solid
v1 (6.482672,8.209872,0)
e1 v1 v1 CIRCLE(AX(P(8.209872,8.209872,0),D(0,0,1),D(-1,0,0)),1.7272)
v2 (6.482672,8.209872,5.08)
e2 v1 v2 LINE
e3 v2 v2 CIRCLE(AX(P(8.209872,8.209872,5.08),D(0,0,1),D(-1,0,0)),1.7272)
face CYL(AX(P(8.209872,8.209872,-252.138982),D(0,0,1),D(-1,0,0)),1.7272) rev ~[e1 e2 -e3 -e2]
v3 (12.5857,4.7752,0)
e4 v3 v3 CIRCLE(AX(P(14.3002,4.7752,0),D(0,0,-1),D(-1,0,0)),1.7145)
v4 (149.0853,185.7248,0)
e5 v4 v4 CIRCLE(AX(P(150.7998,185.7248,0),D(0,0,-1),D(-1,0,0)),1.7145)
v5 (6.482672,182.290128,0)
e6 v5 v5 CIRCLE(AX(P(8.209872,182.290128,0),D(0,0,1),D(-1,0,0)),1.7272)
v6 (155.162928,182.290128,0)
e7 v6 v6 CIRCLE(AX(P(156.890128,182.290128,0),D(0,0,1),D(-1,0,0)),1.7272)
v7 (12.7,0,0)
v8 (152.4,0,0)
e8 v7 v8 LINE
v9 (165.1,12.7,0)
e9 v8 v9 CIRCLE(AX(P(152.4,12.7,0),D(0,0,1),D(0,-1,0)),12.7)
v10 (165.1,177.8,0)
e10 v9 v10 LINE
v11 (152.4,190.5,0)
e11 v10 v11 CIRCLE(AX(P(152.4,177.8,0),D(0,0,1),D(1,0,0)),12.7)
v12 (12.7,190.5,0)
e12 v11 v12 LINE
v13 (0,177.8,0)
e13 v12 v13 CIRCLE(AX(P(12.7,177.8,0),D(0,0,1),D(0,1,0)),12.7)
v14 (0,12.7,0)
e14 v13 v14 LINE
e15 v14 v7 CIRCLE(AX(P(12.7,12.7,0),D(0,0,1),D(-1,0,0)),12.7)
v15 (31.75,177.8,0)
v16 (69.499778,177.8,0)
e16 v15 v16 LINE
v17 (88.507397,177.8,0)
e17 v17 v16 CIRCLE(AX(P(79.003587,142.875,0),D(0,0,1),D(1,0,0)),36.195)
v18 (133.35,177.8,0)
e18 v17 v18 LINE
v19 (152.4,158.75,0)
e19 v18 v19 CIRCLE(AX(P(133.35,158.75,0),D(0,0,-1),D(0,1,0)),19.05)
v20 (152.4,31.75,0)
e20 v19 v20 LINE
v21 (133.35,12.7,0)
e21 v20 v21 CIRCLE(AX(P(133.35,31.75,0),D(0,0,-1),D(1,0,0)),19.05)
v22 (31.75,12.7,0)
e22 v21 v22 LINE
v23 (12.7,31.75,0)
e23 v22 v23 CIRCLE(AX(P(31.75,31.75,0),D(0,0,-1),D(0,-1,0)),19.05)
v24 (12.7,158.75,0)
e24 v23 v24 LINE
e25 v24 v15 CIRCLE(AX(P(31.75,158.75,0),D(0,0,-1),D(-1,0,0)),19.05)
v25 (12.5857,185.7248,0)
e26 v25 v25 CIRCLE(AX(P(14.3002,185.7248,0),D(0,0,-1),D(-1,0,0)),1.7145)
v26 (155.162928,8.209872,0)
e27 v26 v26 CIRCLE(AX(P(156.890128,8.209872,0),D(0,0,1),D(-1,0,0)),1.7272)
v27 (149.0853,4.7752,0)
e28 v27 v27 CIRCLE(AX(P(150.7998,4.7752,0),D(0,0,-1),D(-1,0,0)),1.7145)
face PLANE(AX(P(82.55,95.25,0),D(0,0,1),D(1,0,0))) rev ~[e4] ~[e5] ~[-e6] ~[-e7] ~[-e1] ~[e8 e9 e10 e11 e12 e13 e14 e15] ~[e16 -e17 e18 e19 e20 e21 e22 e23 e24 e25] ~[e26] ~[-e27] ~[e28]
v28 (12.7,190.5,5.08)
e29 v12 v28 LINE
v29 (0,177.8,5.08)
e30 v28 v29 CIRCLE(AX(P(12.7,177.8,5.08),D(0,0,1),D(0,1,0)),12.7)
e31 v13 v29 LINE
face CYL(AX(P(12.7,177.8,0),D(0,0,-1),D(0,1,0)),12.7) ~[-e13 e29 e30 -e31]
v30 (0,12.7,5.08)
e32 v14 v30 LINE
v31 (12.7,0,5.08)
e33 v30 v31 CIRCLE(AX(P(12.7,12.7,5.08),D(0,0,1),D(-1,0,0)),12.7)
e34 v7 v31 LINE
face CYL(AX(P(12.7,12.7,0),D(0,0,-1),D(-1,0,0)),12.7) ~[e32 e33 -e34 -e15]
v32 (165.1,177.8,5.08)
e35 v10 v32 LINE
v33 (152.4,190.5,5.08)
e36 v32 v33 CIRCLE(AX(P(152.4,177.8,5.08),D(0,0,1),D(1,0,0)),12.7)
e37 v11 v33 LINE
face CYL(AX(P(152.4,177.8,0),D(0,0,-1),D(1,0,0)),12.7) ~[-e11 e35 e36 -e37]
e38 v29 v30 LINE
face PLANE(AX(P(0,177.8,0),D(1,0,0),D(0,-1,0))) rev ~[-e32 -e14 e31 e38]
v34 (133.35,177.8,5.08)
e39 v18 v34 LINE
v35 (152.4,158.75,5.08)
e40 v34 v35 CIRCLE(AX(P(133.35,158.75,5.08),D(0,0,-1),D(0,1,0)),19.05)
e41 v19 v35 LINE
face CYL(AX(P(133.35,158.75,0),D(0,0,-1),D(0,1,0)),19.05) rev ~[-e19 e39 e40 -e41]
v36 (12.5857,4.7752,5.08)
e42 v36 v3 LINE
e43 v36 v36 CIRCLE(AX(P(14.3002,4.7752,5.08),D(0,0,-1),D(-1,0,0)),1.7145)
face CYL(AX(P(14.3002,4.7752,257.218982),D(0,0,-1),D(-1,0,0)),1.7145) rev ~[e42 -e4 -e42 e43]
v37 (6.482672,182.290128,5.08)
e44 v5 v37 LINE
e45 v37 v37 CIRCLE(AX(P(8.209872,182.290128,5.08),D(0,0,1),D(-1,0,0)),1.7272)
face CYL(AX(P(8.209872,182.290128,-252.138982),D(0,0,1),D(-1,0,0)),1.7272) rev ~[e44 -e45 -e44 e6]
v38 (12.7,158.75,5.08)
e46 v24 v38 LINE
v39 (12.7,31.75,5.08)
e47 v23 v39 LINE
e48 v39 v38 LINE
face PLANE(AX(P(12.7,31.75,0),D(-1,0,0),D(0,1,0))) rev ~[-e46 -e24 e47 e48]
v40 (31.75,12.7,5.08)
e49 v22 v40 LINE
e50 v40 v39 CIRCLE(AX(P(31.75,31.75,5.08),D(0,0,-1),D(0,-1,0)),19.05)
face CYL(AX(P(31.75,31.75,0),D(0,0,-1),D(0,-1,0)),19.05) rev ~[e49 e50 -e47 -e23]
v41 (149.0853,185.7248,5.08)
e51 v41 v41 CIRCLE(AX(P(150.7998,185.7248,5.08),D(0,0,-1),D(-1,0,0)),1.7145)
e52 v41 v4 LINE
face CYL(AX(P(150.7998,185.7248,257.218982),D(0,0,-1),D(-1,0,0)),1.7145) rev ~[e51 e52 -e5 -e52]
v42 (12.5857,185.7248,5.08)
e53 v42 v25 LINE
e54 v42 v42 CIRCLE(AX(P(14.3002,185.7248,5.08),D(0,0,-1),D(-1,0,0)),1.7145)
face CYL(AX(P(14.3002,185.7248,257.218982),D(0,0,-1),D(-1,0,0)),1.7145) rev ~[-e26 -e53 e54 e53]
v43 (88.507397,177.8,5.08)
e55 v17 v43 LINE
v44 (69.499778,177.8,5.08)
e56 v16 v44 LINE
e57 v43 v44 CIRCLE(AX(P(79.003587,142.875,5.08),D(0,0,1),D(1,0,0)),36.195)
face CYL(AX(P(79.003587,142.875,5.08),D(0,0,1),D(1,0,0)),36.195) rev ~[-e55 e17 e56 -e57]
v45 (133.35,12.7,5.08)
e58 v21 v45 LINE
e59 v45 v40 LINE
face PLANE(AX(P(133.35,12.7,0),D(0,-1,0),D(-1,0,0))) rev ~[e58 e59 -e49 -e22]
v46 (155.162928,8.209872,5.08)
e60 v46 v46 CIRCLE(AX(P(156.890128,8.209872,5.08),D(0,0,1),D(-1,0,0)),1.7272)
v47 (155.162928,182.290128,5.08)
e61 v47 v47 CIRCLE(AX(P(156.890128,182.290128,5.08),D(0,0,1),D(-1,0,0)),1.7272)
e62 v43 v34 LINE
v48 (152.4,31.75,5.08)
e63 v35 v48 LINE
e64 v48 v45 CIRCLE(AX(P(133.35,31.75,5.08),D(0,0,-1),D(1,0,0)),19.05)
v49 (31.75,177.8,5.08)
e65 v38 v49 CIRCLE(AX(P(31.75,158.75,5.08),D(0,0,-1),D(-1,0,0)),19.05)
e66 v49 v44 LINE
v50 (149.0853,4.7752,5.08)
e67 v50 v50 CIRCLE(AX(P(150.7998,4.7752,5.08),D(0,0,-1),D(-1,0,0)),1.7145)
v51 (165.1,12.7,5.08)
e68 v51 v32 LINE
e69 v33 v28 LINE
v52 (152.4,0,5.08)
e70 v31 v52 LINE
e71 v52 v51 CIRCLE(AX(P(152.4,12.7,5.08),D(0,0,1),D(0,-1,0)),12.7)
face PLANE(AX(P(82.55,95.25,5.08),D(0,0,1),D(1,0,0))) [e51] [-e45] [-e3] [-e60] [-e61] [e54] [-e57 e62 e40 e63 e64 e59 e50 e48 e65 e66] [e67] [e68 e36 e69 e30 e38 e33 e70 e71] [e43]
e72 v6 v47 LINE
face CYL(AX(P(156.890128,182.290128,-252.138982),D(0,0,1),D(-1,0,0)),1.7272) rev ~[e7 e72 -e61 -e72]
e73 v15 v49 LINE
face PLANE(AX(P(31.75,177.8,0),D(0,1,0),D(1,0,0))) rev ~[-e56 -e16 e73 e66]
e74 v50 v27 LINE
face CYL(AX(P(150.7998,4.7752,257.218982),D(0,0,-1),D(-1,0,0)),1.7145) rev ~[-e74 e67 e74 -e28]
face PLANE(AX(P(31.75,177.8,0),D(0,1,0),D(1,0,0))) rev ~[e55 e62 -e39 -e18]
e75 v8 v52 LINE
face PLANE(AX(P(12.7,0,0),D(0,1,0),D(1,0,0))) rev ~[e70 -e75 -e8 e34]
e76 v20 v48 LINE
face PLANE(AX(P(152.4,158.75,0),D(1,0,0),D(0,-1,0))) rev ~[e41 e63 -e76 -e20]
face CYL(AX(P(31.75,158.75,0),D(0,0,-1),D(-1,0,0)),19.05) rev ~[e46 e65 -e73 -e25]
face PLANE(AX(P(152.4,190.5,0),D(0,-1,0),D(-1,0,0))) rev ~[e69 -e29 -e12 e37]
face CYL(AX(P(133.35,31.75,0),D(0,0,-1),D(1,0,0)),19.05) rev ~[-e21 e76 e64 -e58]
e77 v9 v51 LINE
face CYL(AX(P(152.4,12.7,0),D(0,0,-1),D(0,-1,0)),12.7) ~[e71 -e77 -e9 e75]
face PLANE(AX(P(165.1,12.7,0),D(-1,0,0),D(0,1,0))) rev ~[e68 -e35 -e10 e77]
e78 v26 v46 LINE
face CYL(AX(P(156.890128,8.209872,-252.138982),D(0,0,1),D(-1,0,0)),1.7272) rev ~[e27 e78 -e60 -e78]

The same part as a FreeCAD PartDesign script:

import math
import FreeCAD as App
import Part
import Sketcher

V = App.Vector
Q = App.Units.Quantity

doc = App.newDocument("Part")
body = doc.addObject("PartDesign::Body", "Body")

# Sketch on XY plane
sketch1 = body.newObject("Sketcher::SketchObject", "Sketch")
sketch1.AttachmentSupport = (doc.getObject("XY_Plane"), [""])
sketch1.MapMode = "FlatFace"
sketch1.addGeometry(Part.ArcOfCircle(Part.Circle(V(13, 13, 0), V(0, 0, 1), 13), math.radians(180), math.radians(270)), False)
sketch1.addGeometry(Part.LineSegment(V(13, 0, 0), V(152, 0, 0)), False)
sketch1.addGeometry(Part.ArcOfCircle(Part.Circle(V(152, 13, 0), V(0, 0, 1), 13), math.radians(-90), math.radians(0)), False)
sketch1.addGeometry(Part.LineSegment(V(165, 13, 0), V(165, 178, 0)), False)
sketch1.addGeometry(Part.ArcOfCircle(Part.Circle(V(152, 178, 0), V(0, 0, 1), 13), math.radians(0), math.radians(90)), False)
sketch1.addGeometry(Part.LineSegment(V(152, 190, 0), V(13, 190, 0)), False)
sketch1.addGeometry(Part.ArcOfCircle(Part.Circle(V(13, 178, 0), V(0, 0, 1), 13), math.radians(90), math.radians(180)), False)
sketch1.addGeometry(Part.LineSegment(V(0, 178, 0), V(0, 13, 0)), False)
sketch1.addGeometry(Part.LineSegment(V(13, 32, 0), V(13, 159, 0)), False)
sketch1.addGeometry(Part.ArcOfCircle(Part.Circle(V(32, 159, 0), V(0, 0, 1), 19), math.radians(90), math.radians(180)), False)
sketch1.addGeometry(Part.LineSegment(V(32, 178, 0), V(133, 178, 0)), False)
sketch1.addGeometry(Part.ArcOfCircle(Part.Circle(V(133, 159, 0), V(0, 0, 1), 19), math.radians(0), math.radians(90)), False)
sketch1.addGeometry(Part.LineSegment(V(152, 159, 0), V(152, 32, 0)), False)
sketch1.addGeometry(Part.ArcOfCircle(Part.Circle(V(133, 32, 0), V(0, 0, 1), 19), math.radians(-90), math.radians(0)), False)
sketch1.addGeometry(Part.LineSegment(V(133, 13, 0), V(32, 13, 0)), False)
sketch1.addGeometry(Part.ArcOfCircle(Part.Circle(V(32, 32, 0), V(0, 0, 1), 19), math.radians(180), math.radians(270)), False)
sketch1.addConstraint(Sketcher.Constraint("Tangent", 0, 2, 1, 1))
sketch1.addConstraint(Sketcher.Constraint("Tangent", 1, 2, 2, 1))
sketch1.addConstraint(Sketcher.Constraint("Tangent", 2, 2, 3, 1))
sketch1.addConstraint(Sketcher.Constraint("Tangent", 3, 2, 4, 1))
sketch1.addConstraint(Sketcher.Constraint("Tangent", 4, 2, 5, 1))
sketch1.addConstraint(Sketcher.Constraint("Tangent", 5, 2, 6, 1))
sketch1.addConstraint(Sketcher.Constraint("Tangent", 6, 2, 7, 1))
sketch1.addConstraint(Sketcher.Constraint("Tangent", 7, 2, 0, 1))
sketch1.addConstraint(Sketcher.Constraint("Tangent", 8, 2, 9, 2))
sketch1.addConstraint(Sketcher.Constraint("Tangent", 9, 1, 10, 1))
sketch1.addConstraint(Sketcher.Constraint("Tangent", 10, 2, 11, 2))
sketch1.addConstraint(Sketcher.Constraint("Tangent", 11, 1, 12, 1))
sketch1.addConstraint(Sketcher.Constraint("Tangent", 12, 2, 13, 2))
sketch1.addConstraint(Sketcher.Constraint("Tangent", 13, 1, 14, 1))
sketch1.addConstraint(Sketcher.Constraint("Tangent", 14, 2, 15, 2))
sketch1.addConstraint(Sketcher.Constraint("Tangent", 15, 1, 8, 1))
sketch1.addConstraint(Sketcher.Constraint("Horizontal", 1))
sketch1.addConstraint(Sketcher.Constraint("Vertical", 3))
sketch1.addConstraint(Sketcher.Constraint("Horizontal", 5))
sketch1.addConstraint(Sketcher.Constraint("Vertical", 7))
sketch1.addConstraint(Sketcher.Constraint("Vertical", 8))
sketch1.addConstraint(Sketcher.Constraint("Horizontal", 10))
sketch1.addConstraint(Sketcher.Constraint("Vertical", 12))
sketch1.addConstraint(Sketcher.Constraint("Horizontal", 14))
sketch1.addConstraint(Sketcher.Constraint("Equal", 0, 2))
sketch1.addConstraint(Sketcher.Constraint("Equal", 2, 4))
sketch1.addConstraint(Sketcher.Constraint("Equal", 4, 6))
sketch1.addConstraint(Sketcher.Constraint("Equal", 9, 11))
sketch1.addConstraint(Sketcher.Constraint("Equal", 11, 13))
sketch1.addConstraint(Sketcher.Constraint("Equal", 13, 15))
sketch1.addConstraint(Sketcher.Constraint("PointOnObject", 0, 2, -1))
sketch1.addConstraint(Sketcher.Constraint("PointOnObject", 6, 2, -2))
sketch1.addConstraint(Sketcher.Constraint("Horizontal", 6, 2, 9, 1))
sketch1.addConstraint(Sketcher.Constraint("Horizontal", 7, 2, 13, 1))
sketch1.addConstraint(Sketcher.Constraint("Vertical", 5, 2, 8, 2))
sketch1.addConstraint(Sketcher.Constraint("Vertical", 4, 2, 11, 1))
sketch1.addConstraint(Sketcher.Constraint("Radius", 0, Q("0.5 in")))
sketch1.addConstraint(Sketcher.Constraint("DistanceX", 10, 1, 10, 2, Q("4 in")))
sketch1.addConstraint(Sketcher.Constraint("DistanceY", 8, 1, 8, 2, Q("5 in")))
sketch1.addConstraint(Sketcher.Constraint("Radius", 9, Q("0.75 in")))
pad1 = body.newObject("PartDesign::Pad", "Pad")
pad1.Profile = sketch1
pad1.Length = Q("0.2 in")

# Sketch on XY plane
sketch2 = body.newObject("Sketcher::SketchObject", "Sketch001")
sketch2.AttachmentSupport = (doc.getObject("XY_Plane"), [""])
sketch2.MapMode = "FlatFace"
sketch2.addGeometry(Part.Circle(V(8.2, 182.3, 0), V(0, 0, 1), 1.7), False)
sketch2.addGeometry(Part.Circle(V(156.9, 182.3, 0), V(0, 0, 1), 1.7), False)
sketch2.addGeometry(Part.Circle(V(156.9, 8.2, 0), V(0, 0, 1), 1.7), False)
sketch2.addGeometry(Part.Circle(V(8.2, 8.2, 0), V(0, 0, 1), 1.7), False)
sketch2.addConstraint(Sketcher.Constraint("Equal", 0, 1))
sketch2.addConstraint(Sketcher.Constraint("Equal", 1, 2))
sketch2.addConstraint(Sketcher.Constraint("Equal", 2, 3))
sketch2.addConstraint(Sketcher.Constraint("Horizontal", 0, 3, 1, 3))
sketch2.addConstraint(Sketcher.Constraint("Horizontal", 2, 3, 3, 3))
sketch2.addConstraint(Sketcher.Constraint("Vertical", 1, 3, 2, 3))
sketch2.addConstraint(Sketcher.Constraint("Vertical", 0, 3, 3, 3))
sketch2.addConstraint(Sketcher.Constraint("Diameter", 0, Q("0.136 in")))
sketch2.addConstraint(Sketcher.Constraint("DistanceX", -1, 1, 0, 3, Q("8.209872 mm")))
sketch2.addConstraint(Sketcher.Constraint("DistanceY", -1, 1, 0, 3, Q("182.290128 mm")))
sketch2.addConstraint(Sketcher.Constraint("DistanceX", -1, 1, 1, 3, Q("156.890128 mm")))
sketch2.addConstraint(Sketcher.Constraint("DistanceY", -1, 1, 2, 3, Q("8.209872 mm")))
doc.recompute()
hole = body.newObject("PartDesign::Hole", "Hole")
hole.Profile = sketch2
hole.ThreadType = "None"
hole.Diameter = Q("0.136 in")
hole.DepthType = "ThroughAll"
hole.Reversed = True

# Sketch on XY plane
sketch3 = body.newObject("Sketcher::SketchObject", "Sketch002")
sketch3.AttachmentSupport = (doc.getObject("XY_Plane"), [""])
sketch3.MapMode = "FlatFace"
sketch3.AttachmentOffset = App.Placement(V(0, 0, 0.2 * 25.4), App.Rotation())
sketch3.addGeometry(Part.Circle(V(14.3, 185.7, 0), V(0, 0, 1), 1.7), False)
sketch3.addGeometry(Part.Circle(V(150.8, 185.7, 0), V(0, 0, 1), 1.7), False)
sketch3.addGeometry(Part.Circle(V(14.3, 4.8, 0), V(0, 0, 1), 1.7), False)
sketch3.addGeometry(Part.Circle(V(150.8, 4.8, 0), V(0, 0, 1), 1.7), False)
sketch3.addConstraint(Sketcher.Constraint("Equal", 0, 1))
sketch3.addConstraint(Sketcher.Constraint("Equal", 1, 2))
sketch3.addConstraint(Sketcher.Constraint("Equal", 2, 3))
sketch3.addConstraint(Sketcher.Constraint("Horizontal", 0, 3, 1, 3))
sketch3.addConstraint(Sketcher.Constraint("Horizontal", 2, 3, 3, 3))
sketch3.addConstraint(Sketcher.Constraint("Vertical", 0, 3, 2, 3))
sketch3.addConstraint(Sketcher.Constraint("Vertical", 1, 3, 3, 3))
sketch3.addConstraint(Sketcher.Constraint("Diameter", 0, Q("0.135 in")))
sketch3.addConstraint(Sketcher.Constraint("DistanceX", -1, 1, 0, 3, Q("0.563 in")))
sketch3.addConstraint(Sketcher.Constraint("DistanceY", -1, 1, 0, 3, Q("7.312 in")))
sketch3.addConstraint(Sketcher.Constraint("DistanceX", -1, 1, 1, 3, Q("5.937 in")))
sketch3.addConstraint(Sketcher.Constraint("DistanceY", -1, 1, 2, 3, Q("0.188 in")))
doc.recompute()
hole2 = body.newObject("PartDesign::Hole", "Hole001")
hole2.Profile = sketch3
hole2.ThreadType = "None"
hole2.Diameter = Q("0.135 in")
hole2.DepthType = "ThroughAll"

# Sketch on XY plane
sketch4 = body.newObject("Sketcher::SketchObject", "Sketch003")
sketch4.AttachmentSupport = (doc.getObject("XY_Plane"), [""])
sketch4.MapMode = "FlatFace"
sketch4.AttachmentOffset = App.Placement(V(0, 0, 0.2 * 25.4), App.Rotation())
sketch4.addGeometry(Part.Circle(V(79, 143, 0), V(0, 0, 1), 36), False)
sketch4.addConstraint(Sketcher.Constraint("Diameter", 0, Q("2.85 in")))
sketch4.addConstraint(Sketcher.Constraint("DistanceY", -1, 1, 0, 3, Q("5.625 in")))
sketch4.addConstraint(Sketcher.Constraint("DistanceX", -1, 1, 0, 3, Q("79.003587 mm")))
pocket1 = body.newObject("PartDesign::Pocket", "Pocket")
pocket1.Profile = sketch4
pocket1.Type = "ThroughAll"

doc.recompute()
